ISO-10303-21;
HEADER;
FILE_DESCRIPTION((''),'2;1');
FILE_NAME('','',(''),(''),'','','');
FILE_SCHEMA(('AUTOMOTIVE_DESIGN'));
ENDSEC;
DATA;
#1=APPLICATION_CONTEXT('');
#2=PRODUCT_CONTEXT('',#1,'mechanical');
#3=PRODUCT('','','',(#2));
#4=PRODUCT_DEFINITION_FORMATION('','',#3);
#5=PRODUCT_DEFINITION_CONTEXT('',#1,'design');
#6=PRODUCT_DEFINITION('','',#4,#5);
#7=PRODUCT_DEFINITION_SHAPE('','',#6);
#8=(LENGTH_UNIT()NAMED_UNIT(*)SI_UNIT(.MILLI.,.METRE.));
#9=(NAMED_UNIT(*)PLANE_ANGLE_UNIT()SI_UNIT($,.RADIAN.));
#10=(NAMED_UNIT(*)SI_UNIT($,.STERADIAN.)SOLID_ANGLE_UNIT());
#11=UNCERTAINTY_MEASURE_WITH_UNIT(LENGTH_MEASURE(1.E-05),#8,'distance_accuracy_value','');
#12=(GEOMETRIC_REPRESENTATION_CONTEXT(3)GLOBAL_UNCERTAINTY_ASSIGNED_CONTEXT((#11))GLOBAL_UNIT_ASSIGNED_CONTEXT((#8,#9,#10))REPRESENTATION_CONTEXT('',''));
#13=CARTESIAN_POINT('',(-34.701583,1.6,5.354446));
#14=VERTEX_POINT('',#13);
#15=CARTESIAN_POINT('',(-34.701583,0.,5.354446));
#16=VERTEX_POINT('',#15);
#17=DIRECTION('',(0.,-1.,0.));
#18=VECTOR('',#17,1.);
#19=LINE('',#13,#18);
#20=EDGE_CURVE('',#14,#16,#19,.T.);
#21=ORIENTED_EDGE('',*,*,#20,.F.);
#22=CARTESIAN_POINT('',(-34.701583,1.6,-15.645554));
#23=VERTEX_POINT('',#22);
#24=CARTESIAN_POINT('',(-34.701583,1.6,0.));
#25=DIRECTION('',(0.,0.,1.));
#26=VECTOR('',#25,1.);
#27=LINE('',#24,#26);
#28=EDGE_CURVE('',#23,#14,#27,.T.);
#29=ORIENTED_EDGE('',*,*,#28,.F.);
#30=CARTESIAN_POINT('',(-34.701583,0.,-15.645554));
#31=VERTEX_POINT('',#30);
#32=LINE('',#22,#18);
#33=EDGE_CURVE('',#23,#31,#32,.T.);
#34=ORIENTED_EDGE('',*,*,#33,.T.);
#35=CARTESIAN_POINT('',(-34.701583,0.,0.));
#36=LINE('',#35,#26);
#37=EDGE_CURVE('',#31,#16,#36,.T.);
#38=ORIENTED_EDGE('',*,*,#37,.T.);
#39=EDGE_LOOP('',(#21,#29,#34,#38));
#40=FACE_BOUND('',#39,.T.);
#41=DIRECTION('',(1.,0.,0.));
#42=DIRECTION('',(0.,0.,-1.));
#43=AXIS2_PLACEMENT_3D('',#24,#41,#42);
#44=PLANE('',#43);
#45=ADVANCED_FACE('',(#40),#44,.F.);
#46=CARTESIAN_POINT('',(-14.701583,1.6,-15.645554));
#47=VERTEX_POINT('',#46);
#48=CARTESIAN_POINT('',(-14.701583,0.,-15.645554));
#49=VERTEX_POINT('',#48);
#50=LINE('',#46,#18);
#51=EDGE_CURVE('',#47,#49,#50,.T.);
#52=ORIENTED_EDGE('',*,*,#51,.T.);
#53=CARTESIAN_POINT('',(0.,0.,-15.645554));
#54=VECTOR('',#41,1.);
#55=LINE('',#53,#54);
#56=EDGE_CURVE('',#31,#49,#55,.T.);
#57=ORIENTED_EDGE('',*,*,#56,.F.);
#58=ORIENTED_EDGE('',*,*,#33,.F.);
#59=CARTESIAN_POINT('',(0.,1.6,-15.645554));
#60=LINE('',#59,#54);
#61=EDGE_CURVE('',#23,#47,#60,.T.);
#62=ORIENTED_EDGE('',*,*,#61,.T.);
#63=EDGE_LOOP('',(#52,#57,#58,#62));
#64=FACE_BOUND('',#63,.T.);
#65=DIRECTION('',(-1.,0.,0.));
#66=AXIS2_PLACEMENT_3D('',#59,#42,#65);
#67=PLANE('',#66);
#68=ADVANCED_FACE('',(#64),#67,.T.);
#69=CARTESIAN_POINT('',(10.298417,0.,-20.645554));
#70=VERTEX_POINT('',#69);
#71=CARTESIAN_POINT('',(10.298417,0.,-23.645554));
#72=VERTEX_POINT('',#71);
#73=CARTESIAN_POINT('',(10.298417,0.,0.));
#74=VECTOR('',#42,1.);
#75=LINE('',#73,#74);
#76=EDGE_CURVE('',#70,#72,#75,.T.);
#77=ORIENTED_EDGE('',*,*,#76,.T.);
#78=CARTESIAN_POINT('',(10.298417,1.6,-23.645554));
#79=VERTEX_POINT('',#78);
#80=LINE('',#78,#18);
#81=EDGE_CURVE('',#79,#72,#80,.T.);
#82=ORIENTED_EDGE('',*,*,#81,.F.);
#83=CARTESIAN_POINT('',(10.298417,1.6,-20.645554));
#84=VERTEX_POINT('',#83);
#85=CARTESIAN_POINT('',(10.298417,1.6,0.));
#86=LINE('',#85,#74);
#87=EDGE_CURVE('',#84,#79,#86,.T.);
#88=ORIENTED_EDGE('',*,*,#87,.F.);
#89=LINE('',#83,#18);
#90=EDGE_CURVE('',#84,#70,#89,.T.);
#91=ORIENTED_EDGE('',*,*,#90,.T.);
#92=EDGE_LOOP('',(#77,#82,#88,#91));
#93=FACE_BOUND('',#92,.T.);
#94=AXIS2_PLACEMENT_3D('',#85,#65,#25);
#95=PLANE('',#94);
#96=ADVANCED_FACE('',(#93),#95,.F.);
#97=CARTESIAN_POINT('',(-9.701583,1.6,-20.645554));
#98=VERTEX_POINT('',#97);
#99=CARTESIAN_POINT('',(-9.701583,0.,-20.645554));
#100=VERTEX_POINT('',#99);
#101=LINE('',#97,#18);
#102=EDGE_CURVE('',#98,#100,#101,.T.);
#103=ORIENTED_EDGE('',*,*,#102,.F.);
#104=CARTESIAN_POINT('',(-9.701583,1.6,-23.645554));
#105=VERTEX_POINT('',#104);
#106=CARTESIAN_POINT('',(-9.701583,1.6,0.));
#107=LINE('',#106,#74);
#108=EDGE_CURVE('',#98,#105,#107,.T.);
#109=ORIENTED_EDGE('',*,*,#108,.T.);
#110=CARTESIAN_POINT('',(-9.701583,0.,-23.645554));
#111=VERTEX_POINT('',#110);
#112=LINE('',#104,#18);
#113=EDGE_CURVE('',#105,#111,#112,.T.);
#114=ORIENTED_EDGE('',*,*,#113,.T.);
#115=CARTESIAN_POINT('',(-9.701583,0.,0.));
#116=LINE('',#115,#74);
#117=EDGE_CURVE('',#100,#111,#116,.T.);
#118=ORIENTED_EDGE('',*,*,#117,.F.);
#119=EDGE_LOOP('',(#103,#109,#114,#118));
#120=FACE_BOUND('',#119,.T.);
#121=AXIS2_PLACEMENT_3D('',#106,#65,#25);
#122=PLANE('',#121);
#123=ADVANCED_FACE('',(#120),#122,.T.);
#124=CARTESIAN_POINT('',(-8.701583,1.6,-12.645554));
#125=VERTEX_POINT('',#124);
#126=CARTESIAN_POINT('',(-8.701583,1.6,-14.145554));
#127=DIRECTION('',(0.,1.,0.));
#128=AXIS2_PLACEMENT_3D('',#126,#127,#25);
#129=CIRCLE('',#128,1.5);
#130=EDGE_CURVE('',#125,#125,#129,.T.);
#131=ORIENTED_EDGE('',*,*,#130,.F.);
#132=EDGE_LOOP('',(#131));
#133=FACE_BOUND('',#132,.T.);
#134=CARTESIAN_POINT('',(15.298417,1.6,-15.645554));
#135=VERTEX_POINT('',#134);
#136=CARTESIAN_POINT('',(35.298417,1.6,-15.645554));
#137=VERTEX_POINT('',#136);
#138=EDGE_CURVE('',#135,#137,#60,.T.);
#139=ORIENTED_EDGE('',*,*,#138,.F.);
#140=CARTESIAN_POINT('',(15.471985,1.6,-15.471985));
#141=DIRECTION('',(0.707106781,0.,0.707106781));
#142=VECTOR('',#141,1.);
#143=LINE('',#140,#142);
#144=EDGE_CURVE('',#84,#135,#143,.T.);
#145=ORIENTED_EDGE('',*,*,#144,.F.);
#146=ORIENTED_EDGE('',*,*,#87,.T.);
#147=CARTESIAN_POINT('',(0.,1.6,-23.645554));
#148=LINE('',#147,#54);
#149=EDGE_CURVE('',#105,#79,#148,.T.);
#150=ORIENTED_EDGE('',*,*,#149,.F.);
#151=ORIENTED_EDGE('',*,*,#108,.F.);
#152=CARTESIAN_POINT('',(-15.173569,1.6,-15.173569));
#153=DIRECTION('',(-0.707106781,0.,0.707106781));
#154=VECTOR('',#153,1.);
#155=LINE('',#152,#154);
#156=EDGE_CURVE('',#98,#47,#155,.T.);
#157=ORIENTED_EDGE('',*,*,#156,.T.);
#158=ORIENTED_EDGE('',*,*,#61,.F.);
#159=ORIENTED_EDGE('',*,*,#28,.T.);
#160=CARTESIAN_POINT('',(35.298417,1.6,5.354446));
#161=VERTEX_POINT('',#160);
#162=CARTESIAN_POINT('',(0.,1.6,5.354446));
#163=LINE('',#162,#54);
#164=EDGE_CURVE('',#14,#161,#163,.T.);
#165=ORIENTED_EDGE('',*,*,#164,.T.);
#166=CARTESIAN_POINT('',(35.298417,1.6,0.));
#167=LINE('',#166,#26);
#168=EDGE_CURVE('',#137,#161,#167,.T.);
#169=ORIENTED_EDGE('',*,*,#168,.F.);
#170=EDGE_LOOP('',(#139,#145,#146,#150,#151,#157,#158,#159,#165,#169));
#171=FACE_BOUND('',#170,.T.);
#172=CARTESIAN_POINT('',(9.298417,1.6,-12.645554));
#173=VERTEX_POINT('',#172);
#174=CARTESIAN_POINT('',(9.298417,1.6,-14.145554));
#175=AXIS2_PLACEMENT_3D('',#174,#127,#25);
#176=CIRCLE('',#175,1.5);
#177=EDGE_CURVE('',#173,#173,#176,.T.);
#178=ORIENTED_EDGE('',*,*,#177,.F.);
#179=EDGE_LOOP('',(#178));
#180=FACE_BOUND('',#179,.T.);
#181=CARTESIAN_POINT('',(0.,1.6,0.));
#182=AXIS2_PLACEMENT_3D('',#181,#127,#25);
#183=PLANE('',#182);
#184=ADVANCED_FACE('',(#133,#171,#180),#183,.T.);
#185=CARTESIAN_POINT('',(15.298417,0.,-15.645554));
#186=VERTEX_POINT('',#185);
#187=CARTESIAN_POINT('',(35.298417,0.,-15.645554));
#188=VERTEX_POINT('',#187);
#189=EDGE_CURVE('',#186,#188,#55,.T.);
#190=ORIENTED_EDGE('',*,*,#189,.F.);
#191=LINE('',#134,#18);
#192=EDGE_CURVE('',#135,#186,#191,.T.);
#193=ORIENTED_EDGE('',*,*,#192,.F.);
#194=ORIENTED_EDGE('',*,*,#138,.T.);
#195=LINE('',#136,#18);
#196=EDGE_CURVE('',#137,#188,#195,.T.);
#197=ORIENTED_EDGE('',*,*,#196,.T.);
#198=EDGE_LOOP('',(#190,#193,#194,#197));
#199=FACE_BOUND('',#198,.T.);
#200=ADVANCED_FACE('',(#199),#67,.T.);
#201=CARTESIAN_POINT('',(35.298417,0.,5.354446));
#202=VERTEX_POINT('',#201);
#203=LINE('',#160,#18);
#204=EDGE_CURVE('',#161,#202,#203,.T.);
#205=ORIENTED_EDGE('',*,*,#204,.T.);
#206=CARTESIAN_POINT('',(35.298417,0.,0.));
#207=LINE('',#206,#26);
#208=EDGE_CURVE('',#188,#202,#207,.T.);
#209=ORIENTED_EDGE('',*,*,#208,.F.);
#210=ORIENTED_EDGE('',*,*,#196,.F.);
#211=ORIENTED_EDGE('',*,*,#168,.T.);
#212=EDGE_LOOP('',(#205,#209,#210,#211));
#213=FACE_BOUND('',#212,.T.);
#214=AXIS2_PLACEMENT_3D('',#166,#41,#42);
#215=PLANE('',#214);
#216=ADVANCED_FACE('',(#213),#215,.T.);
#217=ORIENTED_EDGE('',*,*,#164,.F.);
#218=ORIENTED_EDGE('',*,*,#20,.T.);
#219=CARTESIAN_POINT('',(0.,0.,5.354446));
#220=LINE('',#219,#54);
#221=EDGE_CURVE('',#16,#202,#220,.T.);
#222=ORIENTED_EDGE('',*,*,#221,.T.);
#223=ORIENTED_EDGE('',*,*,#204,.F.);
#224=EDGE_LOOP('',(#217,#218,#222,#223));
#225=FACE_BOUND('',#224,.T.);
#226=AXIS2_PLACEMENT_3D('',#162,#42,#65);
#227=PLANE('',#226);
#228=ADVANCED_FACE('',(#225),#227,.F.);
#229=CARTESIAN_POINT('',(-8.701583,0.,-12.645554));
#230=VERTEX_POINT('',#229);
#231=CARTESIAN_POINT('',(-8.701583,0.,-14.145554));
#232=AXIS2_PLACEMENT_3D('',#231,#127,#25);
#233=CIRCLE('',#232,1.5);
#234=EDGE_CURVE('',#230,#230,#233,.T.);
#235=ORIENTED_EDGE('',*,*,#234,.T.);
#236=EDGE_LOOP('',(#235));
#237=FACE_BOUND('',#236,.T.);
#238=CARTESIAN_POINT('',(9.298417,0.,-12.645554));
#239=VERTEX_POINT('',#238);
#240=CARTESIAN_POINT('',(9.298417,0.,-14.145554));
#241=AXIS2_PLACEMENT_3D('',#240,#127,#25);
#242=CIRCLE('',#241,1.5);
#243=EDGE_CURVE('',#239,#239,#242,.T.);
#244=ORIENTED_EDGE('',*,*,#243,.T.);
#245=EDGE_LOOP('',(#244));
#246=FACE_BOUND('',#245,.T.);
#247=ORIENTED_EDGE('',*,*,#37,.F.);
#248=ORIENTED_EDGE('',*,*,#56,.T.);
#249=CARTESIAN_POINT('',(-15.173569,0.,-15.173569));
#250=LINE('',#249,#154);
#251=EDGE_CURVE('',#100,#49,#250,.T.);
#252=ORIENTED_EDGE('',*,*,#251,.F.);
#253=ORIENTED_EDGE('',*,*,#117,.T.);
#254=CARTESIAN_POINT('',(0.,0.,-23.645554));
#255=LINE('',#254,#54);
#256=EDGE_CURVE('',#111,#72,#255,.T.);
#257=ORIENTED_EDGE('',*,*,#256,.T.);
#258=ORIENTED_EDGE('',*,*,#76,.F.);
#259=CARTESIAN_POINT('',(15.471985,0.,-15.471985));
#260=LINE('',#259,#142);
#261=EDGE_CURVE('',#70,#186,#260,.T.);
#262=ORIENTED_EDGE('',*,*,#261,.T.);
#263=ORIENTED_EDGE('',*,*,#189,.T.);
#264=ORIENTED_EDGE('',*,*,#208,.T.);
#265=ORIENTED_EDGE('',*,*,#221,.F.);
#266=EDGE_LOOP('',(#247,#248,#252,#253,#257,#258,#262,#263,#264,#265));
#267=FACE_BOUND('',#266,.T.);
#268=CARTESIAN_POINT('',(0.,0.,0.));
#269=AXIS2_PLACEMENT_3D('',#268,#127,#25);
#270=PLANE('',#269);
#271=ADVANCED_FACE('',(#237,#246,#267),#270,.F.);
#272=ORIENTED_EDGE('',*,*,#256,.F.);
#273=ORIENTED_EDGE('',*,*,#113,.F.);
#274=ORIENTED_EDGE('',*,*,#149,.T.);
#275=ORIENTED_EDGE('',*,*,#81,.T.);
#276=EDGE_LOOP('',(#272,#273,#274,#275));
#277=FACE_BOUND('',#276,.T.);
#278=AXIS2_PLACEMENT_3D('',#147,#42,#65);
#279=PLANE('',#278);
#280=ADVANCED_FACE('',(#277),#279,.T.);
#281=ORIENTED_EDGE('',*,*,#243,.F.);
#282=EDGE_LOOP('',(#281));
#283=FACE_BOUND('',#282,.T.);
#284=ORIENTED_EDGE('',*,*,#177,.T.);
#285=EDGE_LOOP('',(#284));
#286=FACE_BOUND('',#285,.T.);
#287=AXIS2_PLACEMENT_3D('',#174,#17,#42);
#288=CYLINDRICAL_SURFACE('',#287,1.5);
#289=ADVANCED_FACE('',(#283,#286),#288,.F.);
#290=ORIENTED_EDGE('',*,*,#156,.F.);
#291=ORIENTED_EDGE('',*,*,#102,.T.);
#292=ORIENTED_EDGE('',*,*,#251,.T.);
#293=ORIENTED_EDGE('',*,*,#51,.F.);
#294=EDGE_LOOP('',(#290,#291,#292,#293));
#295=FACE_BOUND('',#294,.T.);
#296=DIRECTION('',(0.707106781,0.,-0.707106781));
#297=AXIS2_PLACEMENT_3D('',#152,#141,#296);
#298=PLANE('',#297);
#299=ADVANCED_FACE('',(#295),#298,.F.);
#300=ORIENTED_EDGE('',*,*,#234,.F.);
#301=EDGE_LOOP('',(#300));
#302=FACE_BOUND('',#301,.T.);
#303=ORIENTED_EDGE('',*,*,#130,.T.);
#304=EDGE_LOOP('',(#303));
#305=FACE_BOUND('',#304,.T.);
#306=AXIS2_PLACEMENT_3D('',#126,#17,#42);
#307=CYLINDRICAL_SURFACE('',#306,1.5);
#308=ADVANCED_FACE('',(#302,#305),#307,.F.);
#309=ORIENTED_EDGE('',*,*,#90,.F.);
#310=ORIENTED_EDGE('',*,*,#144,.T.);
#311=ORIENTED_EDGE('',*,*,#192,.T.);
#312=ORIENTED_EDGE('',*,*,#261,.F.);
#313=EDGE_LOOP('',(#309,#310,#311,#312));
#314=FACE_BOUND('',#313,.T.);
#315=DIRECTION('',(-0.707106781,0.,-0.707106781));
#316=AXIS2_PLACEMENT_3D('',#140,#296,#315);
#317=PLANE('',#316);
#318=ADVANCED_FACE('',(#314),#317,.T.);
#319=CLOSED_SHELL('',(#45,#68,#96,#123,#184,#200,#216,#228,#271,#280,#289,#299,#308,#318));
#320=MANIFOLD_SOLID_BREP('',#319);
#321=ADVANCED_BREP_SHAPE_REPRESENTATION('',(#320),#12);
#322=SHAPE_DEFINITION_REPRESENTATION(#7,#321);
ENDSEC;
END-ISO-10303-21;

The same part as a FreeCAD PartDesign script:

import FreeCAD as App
import Part
import Sketcher
from FreeCAD import Vector


def add_polygon(sketch, points):
    """Adds a closed chain of lines whose ends are joined by coincident constraints."""
    first, n = sketch.GeometryCount, len(points)
    for a, b in zip(points, points[1:] + points[:1]):
        sketch.addGeometry(Part.LineSegment(App.Vector(*a, 0), App.Vector(*b, 0)), False)
    for i in range(n):
        sketch.addConstraint(Sketcher.Constraint("Coincident", first + i, 2, first + (i + 1) % n, 1))

doc = App.newDocument("Part")
body = doc.addObject("PartDesign::Body", "Body")

sketch1 = body.newObject("Sketcher::SketchObject", "Sketch")
sketch1.AttachmentSupport = (doc.getObject("XZ_Plane"), [""])
sketch1.MapMode = "FlatFace"
add_polygon(sketch1, [(-9.7, -20.6), (-14.7, -15.6), (-34.7, -15.6), (-34.7, 5.4), (35.3, 5.4), (35.3, -15.6), (15.3, -15.6), (10.3, -20.6), (10.3, -23.6), (-9.7, -23.6)])
sketch1.addGeometry(Part.Circle(Vector(-8.7, -14.1, 0), Vector(0, 0, 1), 1.5), False)
sketch1.addGeometry(Part.Circle(Vector(9.3, -14.1, 0), Vector(0, 0, 1), 1.5), False)
sketch1.addConstraint(Sketcher.Constraint("Horizontal", 1))
sketch1.addConstraint(Sketcher.Constraint("Vertical", 2))
sketch1.addConstraint(Sketcher.Constraint("Horizontal", 3))
sketch1.addConstraint(Sketcher.Constraint("Vertical", 4))
sketch1.addConstraint(Sketcher.Constraint("Horizontal", 5))
sketch1.addConstraint(Sketcher.Constraint("Vertical", 7))
sketch1.addConstraint(Sketcher.Constraint("Horizontal", 8))
sketch1.addConstraint(Sketcher.Constraint("Vertical", 9))
sketch1.addConstraint(Sketcher.Constraint("Equal", 10, 11))
sketch1.addConstraint(Sketcher.Constraint("Perpendicular", 0, 6))
sketch1.addConstraint(Sketcher.Constraint("Horizontal", 10, 3, 11, 3))
sketch1.addConstraint(Sketcher.Constraint("Horizontal", 1, 2, 4, 2))
sketch1.addConstraint(Sketcher.Constraint("Horizontal", 6, 2, 9, 2))
sketch1.addConstraint(Sketcher.Constraint("Equal", 1, 5))
sketch1.addConstraint(Sketcher.Constraint("Equal", 5, 8))
sketch1.addConstraint(Sketcher.Constraint("Equal", 0, 6))
sketch1.addConstraint(Sketcher.Constraint("Diameter", 10, 3.0))
sketch1.addConstraint(Sketcher.Constraint("DistanceX", 1, 2, 1, 1, 20.0))
sketch1.addConstraint(Sketcher.Constraint("DistanceX", 3, 1, 3, 2, 70.0))
sketch1.addConstraint(Sketcher.Constraint("DistanceY", 2, 1, 2, 2, 21.0))
sketch1.addConstraint(Sketcher.Constraint("DistanceY", 7, 2, 7, 1, 3.0))
sketch1.addConstraint(Sketcher.Constraint("DistanceX", 10, 3, 11, 3, 18.0))
sketch1.addConstraint(Sketcher.Constraint("DistanceX", 0, 2, 10, 3, 6.0))
sketch1.addConstraint(Sketcher.Constraint("DistanceY", 0, 2, 10, 3, 1.5))
sketch1.addConstraint(Sketcher.Constraint("DistanceX", 10, 3, -1, 1, 8.701583))
sketch1.addConstraint(Sketcher.Constraint("DistanceY", 10, 3, -1, 1, 14.145554))
pad1 = body.newObject("PartDesign::Pad", "Pad")
pad1.Profile = sketch1
pad1.Length = 1.6
pad1.Reversed = True

doc.recompute()
